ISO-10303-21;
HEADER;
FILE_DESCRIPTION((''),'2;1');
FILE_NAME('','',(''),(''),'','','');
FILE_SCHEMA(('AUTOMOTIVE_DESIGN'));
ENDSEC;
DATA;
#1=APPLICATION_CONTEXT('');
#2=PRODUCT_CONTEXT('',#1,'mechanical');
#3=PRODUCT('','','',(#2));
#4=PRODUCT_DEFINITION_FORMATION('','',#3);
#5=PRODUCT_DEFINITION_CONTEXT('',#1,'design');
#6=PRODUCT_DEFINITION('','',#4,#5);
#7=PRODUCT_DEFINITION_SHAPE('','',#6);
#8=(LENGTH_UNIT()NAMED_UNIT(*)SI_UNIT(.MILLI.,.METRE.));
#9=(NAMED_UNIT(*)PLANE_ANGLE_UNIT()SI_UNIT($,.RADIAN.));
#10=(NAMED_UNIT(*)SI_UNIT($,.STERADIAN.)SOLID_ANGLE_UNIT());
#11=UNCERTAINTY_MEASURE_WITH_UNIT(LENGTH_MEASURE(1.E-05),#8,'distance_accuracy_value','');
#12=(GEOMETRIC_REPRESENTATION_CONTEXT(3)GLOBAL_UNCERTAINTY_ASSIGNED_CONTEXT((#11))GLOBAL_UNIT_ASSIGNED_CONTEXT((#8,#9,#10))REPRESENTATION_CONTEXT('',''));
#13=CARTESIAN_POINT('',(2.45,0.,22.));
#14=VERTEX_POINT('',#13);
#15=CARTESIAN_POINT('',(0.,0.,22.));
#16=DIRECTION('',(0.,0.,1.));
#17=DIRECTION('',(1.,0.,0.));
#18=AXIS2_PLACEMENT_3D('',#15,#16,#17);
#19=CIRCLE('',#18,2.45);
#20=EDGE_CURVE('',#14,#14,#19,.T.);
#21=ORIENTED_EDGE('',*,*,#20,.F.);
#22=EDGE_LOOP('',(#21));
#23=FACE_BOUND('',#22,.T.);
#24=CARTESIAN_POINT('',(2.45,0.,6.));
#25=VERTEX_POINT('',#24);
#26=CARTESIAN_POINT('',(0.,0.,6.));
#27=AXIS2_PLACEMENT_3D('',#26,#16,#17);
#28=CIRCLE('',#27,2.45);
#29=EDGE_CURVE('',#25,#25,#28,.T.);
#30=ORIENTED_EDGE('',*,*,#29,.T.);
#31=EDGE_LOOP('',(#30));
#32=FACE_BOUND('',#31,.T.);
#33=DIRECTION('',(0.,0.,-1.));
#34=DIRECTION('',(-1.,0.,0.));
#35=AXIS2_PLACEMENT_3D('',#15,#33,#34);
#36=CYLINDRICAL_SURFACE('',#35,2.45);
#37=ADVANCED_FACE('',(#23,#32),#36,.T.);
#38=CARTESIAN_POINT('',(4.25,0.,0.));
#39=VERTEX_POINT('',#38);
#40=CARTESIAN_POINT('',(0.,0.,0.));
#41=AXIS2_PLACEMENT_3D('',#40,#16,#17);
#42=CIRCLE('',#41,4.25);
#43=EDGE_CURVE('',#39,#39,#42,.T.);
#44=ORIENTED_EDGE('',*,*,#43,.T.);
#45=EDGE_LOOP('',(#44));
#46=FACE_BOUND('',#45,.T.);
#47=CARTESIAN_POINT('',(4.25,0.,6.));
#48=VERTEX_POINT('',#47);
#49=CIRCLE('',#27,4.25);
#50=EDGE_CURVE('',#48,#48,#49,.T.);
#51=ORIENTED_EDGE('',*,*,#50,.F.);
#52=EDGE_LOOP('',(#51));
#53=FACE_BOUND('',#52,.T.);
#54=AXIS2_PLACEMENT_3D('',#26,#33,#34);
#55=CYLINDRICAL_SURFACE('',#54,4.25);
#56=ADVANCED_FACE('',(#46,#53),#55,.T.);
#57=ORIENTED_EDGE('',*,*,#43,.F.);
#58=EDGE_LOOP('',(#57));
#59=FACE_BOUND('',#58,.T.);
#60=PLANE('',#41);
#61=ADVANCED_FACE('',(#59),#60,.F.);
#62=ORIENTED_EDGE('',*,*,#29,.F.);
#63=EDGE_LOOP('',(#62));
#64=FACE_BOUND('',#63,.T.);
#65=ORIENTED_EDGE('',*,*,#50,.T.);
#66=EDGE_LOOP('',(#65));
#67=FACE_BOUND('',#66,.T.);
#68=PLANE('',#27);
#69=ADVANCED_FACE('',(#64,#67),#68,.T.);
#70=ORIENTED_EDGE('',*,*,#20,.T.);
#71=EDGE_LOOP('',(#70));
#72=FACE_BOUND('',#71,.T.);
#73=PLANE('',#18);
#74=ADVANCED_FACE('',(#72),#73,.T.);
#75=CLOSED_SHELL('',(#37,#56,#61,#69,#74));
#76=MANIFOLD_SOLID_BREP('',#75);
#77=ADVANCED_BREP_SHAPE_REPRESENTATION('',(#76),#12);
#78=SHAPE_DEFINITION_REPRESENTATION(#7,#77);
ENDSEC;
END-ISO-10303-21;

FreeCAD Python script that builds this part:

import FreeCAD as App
import Part
import Sketcher

V = App.Vector

doc = App.newDocument("Part")
body = doc.addObject("PartDesign::Body", "Body")

sketch1 = body.newObject("Sketcher::SketchObject", "Sketch")
sketch1.AttachmentSupport = (doc.getObject("XY_Plane"), [""])
sketch1.MapMode = "FlatFace"
sketch1.addGeometry(Part.Circle(V(0, 0, 0), V(0, 0, 1), 4.25), False)
sketch1.addConstraint([
    Sketcher.Constraint("Coincident", 0, 3, -1, 1),
    Sketcher.Constraint("Diameter", 0, 8.5),
])
pad1 = body.newObject("PartDesign::Pad", "Pad")
pad1.Profile = sketch1
pad1.Length = 6

sketch2 = body.newObject("Sketcher::SketchObject", "Sketch001")
sketch2.AttachmentSupport = (doc.getObject("XY_Plane"), [""])
sketch2.MapMode = "FlatFace"
sketch2.AttachmentOffset = App.Placement(V(0, 0, 6), App.Rotation())
sketch2.addGeometry(Part.Circle(V(0, 0, 0), V(0, 0, 1), 2.45), False)
sketch2.addConstraint([
    Sketcher.Constraint("Coincident", 0, 3, -1, 1),
    Sketcher.Constraint("Diameter", 0, 4.9),
])
pad2 = body.newObject("PartDesign::Pad", "Pad001")
pad2.Profile = sketch2
pad2.Length = 16

doc.recompute()
